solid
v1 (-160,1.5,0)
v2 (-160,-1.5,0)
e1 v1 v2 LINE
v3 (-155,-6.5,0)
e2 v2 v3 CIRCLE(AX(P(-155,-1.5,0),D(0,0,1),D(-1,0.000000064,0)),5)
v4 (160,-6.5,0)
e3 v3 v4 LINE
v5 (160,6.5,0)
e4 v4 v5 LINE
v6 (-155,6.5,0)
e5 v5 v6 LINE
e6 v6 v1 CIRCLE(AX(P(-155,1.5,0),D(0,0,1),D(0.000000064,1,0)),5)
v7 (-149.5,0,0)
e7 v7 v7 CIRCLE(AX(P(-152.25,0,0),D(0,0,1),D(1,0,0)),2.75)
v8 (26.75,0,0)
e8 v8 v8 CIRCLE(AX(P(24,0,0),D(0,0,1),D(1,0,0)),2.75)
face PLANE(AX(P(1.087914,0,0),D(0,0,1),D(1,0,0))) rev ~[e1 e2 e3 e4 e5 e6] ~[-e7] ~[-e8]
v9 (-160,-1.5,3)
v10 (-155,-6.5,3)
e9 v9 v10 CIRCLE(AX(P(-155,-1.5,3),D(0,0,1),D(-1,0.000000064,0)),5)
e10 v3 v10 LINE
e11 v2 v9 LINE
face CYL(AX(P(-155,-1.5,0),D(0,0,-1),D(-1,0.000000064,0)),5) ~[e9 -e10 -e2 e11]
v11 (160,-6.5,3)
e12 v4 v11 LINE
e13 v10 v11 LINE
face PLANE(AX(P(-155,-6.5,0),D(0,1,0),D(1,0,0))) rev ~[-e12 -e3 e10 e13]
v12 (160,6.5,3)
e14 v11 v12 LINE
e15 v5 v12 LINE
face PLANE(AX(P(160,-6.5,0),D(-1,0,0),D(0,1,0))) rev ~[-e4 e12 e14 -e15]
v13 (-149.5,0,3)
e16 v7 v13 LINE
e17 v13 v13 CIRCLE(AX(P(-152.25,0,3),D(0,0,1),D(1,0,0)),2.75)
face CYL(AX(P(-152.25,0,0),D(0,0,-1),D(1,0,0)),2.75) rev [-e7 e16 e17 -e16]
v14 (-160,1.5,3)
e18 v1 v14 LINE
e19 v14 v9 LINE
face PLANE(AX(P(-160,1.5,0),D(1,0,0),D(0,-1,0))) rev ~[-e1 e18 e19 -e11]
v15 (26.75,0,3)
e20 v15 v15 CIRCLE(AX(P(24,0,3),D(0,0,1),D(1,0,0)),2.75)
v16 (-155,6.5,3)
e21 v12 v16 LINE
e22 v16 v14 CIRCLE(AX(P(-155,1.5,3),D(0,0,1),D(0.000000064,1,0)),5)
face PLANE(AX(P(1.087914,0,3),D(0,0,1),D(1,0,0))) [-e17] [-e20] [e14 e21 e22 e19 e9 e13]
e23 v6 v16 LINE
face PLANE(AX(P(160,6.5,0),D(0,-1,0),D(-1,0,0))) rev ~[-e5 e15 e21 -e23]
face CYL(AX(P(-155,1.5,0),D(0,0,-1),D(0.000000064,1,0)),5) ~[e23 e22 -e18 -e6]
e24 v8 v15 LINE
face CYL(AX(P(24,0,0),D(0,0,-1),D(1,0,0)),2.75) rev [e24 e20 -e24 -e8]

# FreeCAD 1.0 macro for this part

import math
import FreeCAD as App
import Part
import Sketcher
from FreeCAD import Vector
Q = App.Units.Quantity

doc = App.newDocument("Part")
body = doc.addObject("PartDesign::Body", "Body")

# Sketch on XY plane
sketch1 = body.newObject("Sketcher::SketchObject", "Sketch")
sketch1.AttachmentSupport = (doc.getObject("XY_Plane"), [""])
sketch1.MapMode = "FlatFace"
sketch1.addGeometry(Part.LineSegment(Vector(-155, -6.5, 0), Vector(160, -6.5, 0)), False)
sketch1.addGeometry(Part.LineSegment(Vector(160, -6.5, 0), Vector(160, 6.5, 0)), False)
sketch1.addGeometry(Part.LineSegment(Vector(160, 6.5, 0), Vector(-155, 6.5, 0)), False)
sketch1.addGeometry(Part.ArcOfCircle(Part.Circle(Vector(-155, 1.5, 0), Vector(0, 0, 1), 5), math.radians(89.999996), math.radians(180.000004)), False)
sketch1.addGeometry(Part.LineSegment(Vector(-160, 1.5, 0), Vector(-160, -1.5, 0)), False)
sketch1.addGeometry(Part.ArcOfCircle(Part.Circle(Vector(-155, -1.5, 0), Vector(0, 0, 1), 5), math.radians(179.999996), math.radians(270.000004)), False)
sketch1.addGeometry(Part.Circle(Vector(-152.25, 0, 0), Vector(0, 0, 1), 2.75), False)
sketch1.addGeometry(Part.Circle(Vector(24, 0, 0), Vector(0, 0, 1), 2.75), False)
sketch1.addConstraint(Sketcher.Constraint("Coincident", 0, 2, 1, 1))
sketch1.addConstraint(Sketcher.Constraint("Coincident", 1, 2, 2, 1))
sketch1.addConstraint(Sketcher.Constraint("Tangent", 2, 2, 3, 1))
sketch1.addConstraint(Sketcher.Constraint("Tangent", 3, 2, 4, 1))
sketch1.addConstraint(Sketcher.Constraint("Tangent", 4, 2, 5, 1))
sketch1.addConstraint(Sketcher.Constraint("Tangent", 5, 2, 0, 1))
sketch1.addConstraint(Sketcher.Constraint("Horizontal", 0))
sketch1.addConstraint(Sketcher.Constraint("Vertical", 1))
sketch1.addConstraint(Sketcher.Constraint("Horizontal", 2))
sketch1.addConstraint(Sketcher.Constraint("Vertical", 4))
sketch1.addConstraint(Sketcher.Constraint("Equal", 3, 5))
sketch1.addConstraint(Sketcher.Constraint("Equal", 6, 7))
sketch1.addConstraint(Sketcher.Constraint("PointOnObject", 6, 3, -1))
sketch1.addConstraint(Sketcher.Constraint("PointOnObject", 7, 3, -1))
sketch1.addConstraint(Sketcher.Constraint("Radius", 3, Q("5 mm")))
sketch1.addConstraint(Sketcher.Constraint("Diameter", 6, Q("5.5 mm")))
sketch1.addConstraint(Sketcher.Constraint("DistanceX", 0, 1, 0, 2, Q("315 mm")))
sketch1.addConstraint(Sketcher.Constraint("DistanceY", 1, 1, 1, 2, Q("13 mm")))
sketch1.addConstraint(Sketcher.Constraint("DistanceX", 3, 3, -1, 1, Q("155 mm")))
sketch1.addConstraint(Sketcher.Constraint("DistanceX", -1, 1, 7, 3, Q("24 mm")))
sketch1.addConstraint(Sketcher.Constraint("DistanceY", -1, 1, 3, 3, Q("1.5 mm")))
sketch1.addConstraint(Sketcher.Constraint("DistanceX", 6, 3, -1, 1, Q("152.25 mm")))
pad1 = body.newObject("PartDesign::Pad", "Pad")
pad1.Profile = sketch1
pad1.Length = 3

doc.recompute()
